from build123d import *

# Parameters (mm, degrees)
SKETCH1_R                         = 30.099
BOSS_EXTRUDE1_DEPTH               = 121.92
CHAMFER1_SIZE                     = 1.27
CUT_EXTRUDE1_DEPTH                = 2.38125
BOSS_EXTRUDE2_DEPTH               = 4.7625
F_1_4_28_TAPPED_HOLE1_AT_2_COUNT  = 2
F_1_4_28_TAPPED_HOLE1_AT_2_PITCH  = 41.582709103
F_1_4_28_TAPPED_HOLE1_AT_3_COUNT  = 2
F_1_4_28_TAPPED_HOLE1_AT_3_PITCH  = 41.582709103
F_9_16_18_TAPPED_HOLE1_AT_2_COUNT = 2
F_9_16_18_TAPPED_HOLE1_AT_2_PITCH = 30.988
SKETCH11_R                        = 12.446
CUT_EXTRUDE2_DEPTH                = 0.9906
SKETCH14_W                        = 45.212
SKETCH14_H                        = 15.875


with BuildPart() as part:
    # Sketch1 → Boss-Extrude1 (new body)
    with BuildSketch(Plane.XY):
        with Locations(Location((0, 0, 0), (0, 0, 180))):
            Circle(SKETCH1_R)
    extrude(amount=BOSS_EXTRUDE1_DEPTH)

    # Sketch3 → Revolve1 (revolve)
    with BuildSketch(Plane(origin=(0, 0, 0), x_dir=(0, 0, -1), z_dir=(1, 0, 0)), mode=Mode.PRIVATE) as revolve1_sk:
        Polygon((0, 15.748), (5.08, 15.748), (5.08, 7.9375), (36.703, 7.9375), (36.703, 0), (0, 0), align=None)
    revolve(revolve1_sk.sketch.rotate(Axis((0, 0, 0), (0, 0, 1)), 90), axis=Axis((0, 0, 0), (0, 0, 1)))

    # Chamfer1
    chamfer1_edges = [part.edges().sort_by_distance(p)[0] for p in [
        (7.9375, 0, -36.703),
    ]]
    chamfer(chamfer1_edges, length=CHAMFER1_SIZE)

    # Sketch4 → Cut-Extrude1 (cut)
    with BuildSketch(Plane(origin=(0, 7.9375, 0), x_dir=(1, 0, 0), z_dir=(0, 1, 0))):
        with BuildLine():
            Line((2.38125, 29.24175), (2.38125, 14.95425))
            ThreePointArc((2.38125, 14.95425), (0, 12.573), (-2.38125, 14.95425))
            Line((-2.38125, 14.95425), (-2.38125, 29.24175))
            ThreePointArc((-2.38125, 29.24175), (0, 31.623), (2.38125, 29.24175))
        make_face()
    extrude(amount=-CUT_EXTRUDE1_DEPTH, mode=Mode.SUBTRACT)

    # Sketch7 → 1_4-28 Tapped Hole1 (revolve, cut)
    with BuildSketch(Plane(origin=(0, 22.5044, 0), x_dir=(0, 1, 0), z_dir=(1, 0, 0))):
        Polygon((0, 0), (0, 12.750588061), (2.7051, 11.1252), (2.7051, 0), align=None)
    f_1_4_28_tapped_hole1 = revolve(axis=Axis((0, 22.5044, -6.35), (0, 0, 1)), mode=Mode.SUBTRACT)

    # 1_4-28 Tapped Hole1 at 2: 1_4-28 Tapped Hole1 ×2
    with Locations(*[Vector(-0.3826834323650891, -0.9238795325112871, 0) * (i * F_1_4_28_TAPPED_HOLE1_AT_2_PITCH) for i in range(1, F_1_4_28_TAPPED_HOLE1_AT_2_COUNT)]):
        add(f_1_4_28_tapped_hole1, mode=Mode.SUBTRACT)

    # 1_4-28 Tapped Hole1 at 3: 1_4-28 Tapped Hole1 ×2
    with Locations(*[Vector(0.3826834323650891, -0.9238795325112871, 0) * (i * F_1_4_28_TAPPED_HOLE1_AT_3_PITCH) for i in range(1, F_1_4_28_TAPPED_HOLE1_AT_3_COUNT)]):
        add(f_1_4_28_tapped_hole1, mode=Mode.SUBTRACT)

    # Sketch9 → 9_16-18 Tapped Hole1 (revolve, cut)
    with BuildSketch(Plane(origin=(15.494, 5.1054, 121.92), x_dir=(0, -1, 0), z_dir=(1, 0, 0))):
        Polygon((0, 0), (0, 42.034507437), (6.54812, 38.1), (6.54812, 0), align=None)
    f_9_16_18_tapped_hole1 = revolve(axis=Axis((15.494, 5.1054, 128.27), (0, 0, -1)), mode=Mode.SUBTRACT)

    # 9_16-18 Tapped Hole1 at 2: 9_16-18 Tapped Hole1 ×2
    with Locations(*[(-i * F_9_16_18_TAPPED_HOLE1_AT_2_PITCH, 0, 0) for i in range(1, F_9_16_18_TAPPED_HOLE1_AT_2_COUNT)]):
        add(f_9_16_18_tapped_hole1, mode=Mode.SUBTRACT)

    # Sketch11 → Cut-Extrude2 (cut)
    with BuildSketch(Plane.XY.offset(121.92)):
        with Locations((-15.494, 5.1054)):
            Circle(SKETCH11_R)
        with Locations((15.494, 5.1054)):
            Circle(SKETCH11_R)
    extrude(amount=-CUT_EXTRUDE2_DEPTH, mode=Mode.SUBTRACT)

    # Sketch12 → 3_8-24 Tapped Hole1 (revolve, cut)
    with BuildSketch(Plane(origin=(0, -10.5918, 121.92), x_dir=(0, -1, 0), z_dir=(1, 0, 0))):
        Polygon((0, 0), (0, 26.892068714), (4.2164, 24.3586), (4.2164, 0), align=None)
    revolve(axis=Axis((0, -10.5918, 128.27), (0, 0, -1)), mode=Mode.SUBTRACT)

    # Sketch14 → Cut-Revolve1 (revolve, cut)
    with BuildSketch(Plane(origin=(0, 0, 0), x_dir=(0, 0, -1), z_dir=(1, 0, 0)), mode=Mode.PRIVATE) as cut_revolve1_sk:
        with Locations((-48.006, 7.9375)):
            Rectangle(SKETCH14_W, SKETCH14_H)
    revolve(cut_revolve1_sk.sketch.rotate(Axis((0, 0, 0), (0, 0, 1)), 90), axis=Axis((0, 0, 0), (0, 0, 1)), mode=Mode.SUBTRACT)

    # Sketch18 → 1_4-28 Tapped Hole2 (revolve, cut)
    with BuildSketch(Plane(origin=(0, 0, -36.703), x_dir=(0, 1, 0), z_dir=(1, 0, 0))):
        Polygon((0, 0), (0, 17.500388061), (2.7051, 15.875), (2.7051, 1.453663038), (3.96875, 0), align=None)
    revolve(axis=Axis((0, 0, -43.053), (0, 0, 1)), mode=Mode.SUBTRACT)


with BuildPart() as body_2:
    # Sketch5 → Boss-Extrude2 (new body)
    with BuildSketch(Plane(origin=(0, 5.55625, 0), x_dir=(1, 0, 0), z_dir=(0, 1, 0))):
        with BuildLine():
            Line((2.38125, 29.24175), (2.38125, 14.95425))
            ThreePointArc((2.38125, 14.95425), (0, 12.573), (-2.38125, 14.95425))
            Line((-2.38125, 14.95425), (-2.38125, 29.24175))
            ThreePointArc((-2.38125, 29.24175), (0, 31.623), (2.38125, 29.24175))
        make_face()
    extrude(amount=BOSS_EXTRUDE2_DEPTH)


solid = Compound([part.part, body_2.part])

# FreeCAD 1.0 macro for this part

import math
import FreeCAD as App
import Part
import Sketcher
Q = App.Units.Quantity


def edges_at(feature, points):
    """Names of the edges that pass closest to the given points."""
    edges = feature.Shape.Edges
    near = lambda p: min(range(len(edges)), key=lambda i: edges[i].distToShape(Part.Vertex(*p))[0])
    return sorted({f"Edge{near(p) + 1}" for p in points})


def add_polygon(sketch, points):
    """Adds a closed chain of lines whose ends are joined by coincident constraints."""
    first, n = sketch.GeometryCount, len(points)
    for a, b in zip(points, points[1:] + points[:1]):
        sketch.addGeometry(Part.LineSegment(App.Vector(*a, 0), App.Vector(*b, 0)), False)
    for i in range(n):
        sketch.addConstraint(Sketcher.Constraint("Coincident", first + i, 2, first + (i + 1) % n, 1))

doc = App.newDocument("Part")
body = doc.addObject("PartDesign::Body", "Body")

# Sketch on XY plane
sketch1 = doc.addObject("Sketcher::SketchObject", "Sketch")
body.addObject(sketch1)
sketch1.AttachmentSupport = (doc.XY_Plane, [""])
sketch1.MapMode = "FlatFace"
sketch1.addGeometry(Part.Circle(App.Vector(0, 0, 0), App.Vector(0, 0, 1), 30.099), False)
sketch1.addConstraint(Sketcher.Constraint("Coincident", 0, 3, -1, 1))
sketch1.addConstraint(Sketcher.Constraint("Diameter", 0, Q("2.37 in")))
pad1 = doc.addObject("PartDesign::Pad", "Pad")
body.addObject(pad1)
pad1.Profile = sketch1
pad1.Length = Q("4.8 in")

# Sketch on YZ plane
sketch2 = doc.addObject("Sketcher::SketchObject", "Sketch001")
body.addObject(sketch2)
sketch2.AttachmentSupport = (doc.YZ_Plane, [""])
sketch2.MapMode = "FlatFace"
add_polygon(sketch2, [(15.748, -5.08), (15.748, 0), (0, 0), (0, -36.703), (7.9375, -36.703), (7.9375, -5.08)])  # lines 0-5
sketch2.addConstraint(Sketcher.Constraint("Vertical", 0))
sketch2.addConstraint(Sketcher.Constraint("Horizontal", 1))
sketch2.addConstraint(Sketcher.Constraint("Vertical", 2))
sketch2.addConstraint(Sketcher.Constraint("Horizontal", 3))
sketch2.addConstraint(Sketcher.Constraint("Vertical", 4))
sketch2.addConstraint(Sketcher.Constraint("Horizontal", 5))
sketch2.addConstraint(Sketcher.Constraint("Coincident", 1, 2, -1, 1))
sketch2.addConstraint(Sketcher.Constraint("DistanceY", 0, 1, 0, 2, Q("0.2 in")))
sketch2.addConstraint(Sketcher.Constraint("DistanceX", 1, 2, 1, 1, Q("0.62 in")))
sketch2.addConstraint(Sketcher.Constraint("DistanceX", 3, 1, 3, 2, Q("0.3125 in")))
sketch2.addConstraint(Sketcher.Constraint("DistanceY", 2, 2, 2, 1, Q("1.445 in")))
revolution = doc.addObject("PartDesign::Revolution", "Revolution")
body.addObject(revolution)
revolution.Profile = sketch2
revolution.ReferenceAxis = (sketch2, ["V_Axis"])
revolution.Angle = 360
doc.recompute()

chamfer = doc.addObject("PartDesign::Chamfer", "Chamfer")
body.addObject(chamfer)
chamfer.Base = (revolution, edges_at(revolution, [(7.938, 0, -36.703)]))
chamfer.Size = Q("0.05 in")

# Sketch on XZ plane
sketch3 = doc.addObject("Sketcher::SketchObject", "Sketch002")
body.addObject(sketch3)
sketch3.AttachmentSupport = (doc.XZ_Plane, [""])
sketch3.MapMode = "FlatFace"
sketch3.AttachmentOffset = App.Placement(App.Vector(0, 0, -0.3125 * 25.4), App.Rotation())
sketch3.addGeometry(Part.LineSegment(App.Vector(2.38125, -14.95425, 0), App.Vector(2.38125, -29.24175, 0)), False)
sketch3.addGeometry(Part.ArcOfCircle(Part.Circle(App.Vector(0, -29.24175, 0), App.Vector(0, 0, 1), 2.38125), math.radians(180), math.radians(360)), False)
sketch3.addGeometry(Part.LineSegment(App.Vector(-2.38125, -29.24175, 0), App.Vector(-2.38125, -14.95425, 0)), False)
sketch3.addGeometry(Part.ArcOfCircle(Part.Circle(App.Vector(0, -14.95425, 0), App.Vector(0, 0, 1), 2.38125), math.radians(0), math.radians(180)), False)
sketch3.addConstraint(Sketcher.Constraint("Tangent", 0, 2, 1, 2))
sketch3.addConstraint(Sketcher.Constraint("Tangent", 1, 1, 2, 1))
sketch3.addConstraint(Sketcher.Constraint("Tangent", 2, 2, 3, 2))
sketch3.addConstraint(Sketcher.Constraint("Tangent", 3, 1, 0, 1))
sketch3.addConstraint(Sketcher.Constraint("Vertical", 0))
sketch3.addConstraint(Sketcher.Constraint("Vertical", 2))
sketch3.addConstraint(Sketcher.Constraint("PointOnObject", 1, 3, -2))
sketch3.addConstraint(Sketcher.Constraint("Radius", 1, Q("0.09375 in")))
sketch3.addConstraint(Sketcher.Constraint("DistanceY", 0, 2, 0, 1, Q("0.5625 in")))
sketch3.addConstraint(Sketcher.Constraint("DistanceY", 1, 3, -1, 1, 29.24175))
pocket1 = doc.addObject("PartDesign::Pocket", "Pocket")
body.addObject(pocket1)
pocket1.Profile = sketch3
pocket1.Length = Q("0.09375 in")
pocket1.Reversed = True

# Sketch on YZ plane
sketch4 = doc.addObject("Sketcher::SketchObject", "Sketch003")
body.addObject(sketch4)
sketch4.AttachmentSupport = (doc.YZ_Plane, [""])
sketch4.MapMode = "FlatFace"
add_polygon(sketch4, [(22.5044, 12.750588), (22.5044, 0), (25.2095, 0), (25.2095, 11.1252)])  # lines 0-3
sketch4.addGeometry(Part.LineSegment(App.Vector(22.5044, 0, 0), App.Vector(22.5044, 12.750588, 0)), True)  # axis
sketch4.addConstraint(Sketcher.Constraint("Vertical", 0))
sketch4.addConstraint(Sketcher.Constraint("Horizontal", 1))
sketch4.addConstraint(Sketcher.Constraint("Vertical", 2))
sketch4.addConstraint(Sketcher.Constraint("Vertical", 4))
sketch4.addConstraint(Sketcher.Constraint("Coincident", 4, 1, 0, 2))
sketch4.addConstraint(Sketcher.Constraint("PointOnObject", 0, 2, -1))
sketch4.addConstraint(Sketcher.Constraint("Equal", 0, 4))
sketch4.addConstraint(Sketcher.Constraint("Angle", 3, Q("149 deg")))
sketch4.addConstraint(Sketcher.Constraint("DistanceY", 2, 1, 2, 2, Q("0.438 in")))
sketch4.addConstraint(Sketcher.Constraint("DistanceX", 1, 1, 1, 2, Q("0.1065 in")))
sketch4.addConstraint(Sketcher.Constraint("DistanceX", -1, 1, 0, 2, Q("0.886 in")))
groove = doc.addObject("PartDesign::Groove", "Groove")
body.addObject(groove)
groove.Profile = sketch4
groove.ReferenceAxis = (sketch4, ["Axis0"])
groove.Angle = 360
doc.recompute()

datumline = doc.addObject("PartDesign::Line", "DatumLine")
body.addObject(datumline)
datumline.Placement = App.Placement(App.Vector(0, 0, 0), App.Rotation(App.Vector(0, 0, 1), App.Vector(-0.382683432, -0.923879533, 0)))
linearpattern = doc.addObject("PartDesign::LinearPattern", "LinearPattern")
body.addObject(linearpattern)
linearpattern.Originals = [groove]
linearpattern.Direction = (datumline, [""])
linearpattern.Mode = "offset"
linearpattern.Offset = 41.582709
linearpattern.Occurrences = 2
body.Tip = linearpattern
doc.recompute()

datumline2 = doc.addObject("PartDesign::Line", "DatumLine001")
body.addObject(datumline2)
datumline2.Placement = App.Placement(App.Vector(0, 0, 0), App.Rotation(App.Vector(0, 0, 1), App.Vector(0.382683432, -0.923879533, 0)))
linearpattern2 = doc.addObject("PartDesign::LinearPattern", "LinearPattern001")
body.addObject(linearpattern2)
linearpattern2.Originals = [groove]
linearpattern2.Direction = (datumline2, [""])
linearpattern2.Mode = "offset"
linearpattern2.Offset = 41.582709
linearpattern2.Occurrences = 2
body.Tip = linearpattern2

# Sketch on YZ plane
sketch5 = doc.addObject("Sketcher::SketchObject", "Sketch004")
body.addObject(sketch5)
sketch5.AttachmentSupport = (doc.YZ_Plane, [""])
sketch5.MapMode = "FlatFace"
sketch5.AttachmentOffset = App.Placement(App.Vector(0, 0, 0.61 * 25.4), App.Rotation())
add_polygon(sketch5, [(5.1054, 79.885493), (5.1054, 121.92), (-1.44272, 121.92), (-1.44272, 83.82)])  # lines 0-3
sketch5.addGeometry(Part.LineSegment(App.Vector(5.1054, 121.92, 0), App.Vector(5.1054, 79.885493, 0)), True)  # axis
sketch5.addConstraint(Sketcher.Constraint("Vertical", 0))
sketch5.addConstraint(Sketcher.Constraint("Horizontal", 1))
sketch5.addConstraint(Sketcher.Constraint("Vertical", 2))
sketch5.addConstraint(Sketcher.Constraint("Vertical", 4))
sketch5.addConstraint(Sketcher.Constraint("Coincident", 4, 1, 0, 2))
sketch5.addConstraint(Sketcher.Constraint("Equal", 0, 4))
sketch5.addConstraint(Sketcher.Constraint("DistanceY", 2, 2, 2, 1, Q("1.5 in")))
sketch5.addConstraint(Sketcher.Constraint("Angle", 3, Q("-31 deg")))
sketch5.addConstraint(Sketcher.Constraint("DistanceY", -1, 1, 0, 2, Q("4.8 in")))
sketch5.addConstraint(Sketcher.Constraint("DistanceX", 1, 2, 1, 1, Q("0.2578 in")))
sketch5.addConstraint(Sketcher.Constraint("DistanceX", -1, 1, 0, 2, Q("0.201 in")))
groove2 = doc.addObject("PartDesign::Groove", "Groove001")
body.addObject(groove2)
groove2.Profile = sketch5
groove2.ReferenceAxis = (sketch5, ["Axis0"])
groove2.Angle = 360
doc.recompute()

linearpattern3 = doc.addObject("PartDesign::LinearPattern", "LinearPattern002")
body.addObject(linearpattern3)
linearpattern3.Originals = [groove2]
linearpattern3.Direction = (doc.X_Axis, [""])
linearpattern3.Mode = "offset"
linearpattern3.Offset = Q("1.22 in")
linearpattern3.Occurrences = 2
linearpattern3.Reversed = True
body.Tip = linearpattern3

# Sketch on XY plane
sketch6 = doc.addObject("Sketcher::SketchObject", "Sketch005")
body.addObject(sketch6)
sketch6.AttachmentSupport = (doc.XY_Plane, [""])
sketch6.MapMode = "FlatFace"
sketch6.AttachmentOffset = App.Placement(App.Vector(0, 0, 4.8 * 25.4), App.Rotation())
sketch6.addGeometry(Part.Circle(App.Vector(-15.494, 5.1054, 0), App.Vector(0, 0, 1), 12.446), False)
sketch6.addGeometry(Part.Circle(App.Vector(15.494, 5.1054, 0), App.Vector(0, 0, 1), 12.446), False)
sketch6.addConstraint(Sketcher.Constraint("Equal", 0, 1))
sketch6.addConstraint(Sketcher.Constraint("Symmetric", 0, 3, 1, 3, -2))
sketch6.addConstraint(Sketcher.Constraint("Diameter", 0, Q("0.98 in")))
sketch6.addConstraint(Sketcher.Constraint("DistanceX", 0, 3, -1, 1, Q("0.61 in")))
sketch6.addConstraint(Sketcher.Constraint("DistanceY", -1, 1, 0, 3, Q("0.201 in")))
pocket2 = doc.addObject("PartDesign::Pocket", "Pocket001")
body.addObject(pocket2)
pocket2.Profile = sketch6
pocket2.Length = Q("0.039 in")

# Sketch on YZ plane
sketch7 = doc.addObject("Sketcher::SketchObject", "Sketch006")
body.addObject(sketch7)
sketch7.AttachmentSupport = (doc.YZ_Plane, [""])
sketch7.MapMode = "FlatFace"
add_polygon(sketch7, [(-10.5918, 95.027931), (-10.5918, 121.92), (-14.8082, 121.92), (-14.8082, 97.5614)])  # lines 0-3
sketch7.addGeometry(Part.LineSegment(App.Vector(-10.5918, 121.92, 0), App.Vector(-10.5918, 95.027931, 0)), True)  # axis
sketch7.addConstraint(Sketcher.Constraint("Vertical", 0))
sketch7.addConstraint(Sketcher.Constraint("Horizontal", 1))
sketch7.addConstraint(Sketcher.Constraint("Vertical", 2))
sketch7.addConstraint(Sketcher.Constraint("Vertical", 4))
sketch7.addConstraint(Sketcher.Constraint("Coincident", 4, 1, 0, 2))
sketch7.addConstraint(Sketcher.Constraint("Equal", 0, 4))
sketch7.addConstraint(Sketcher.Constraint("Angle", 3, Q("-31 deg")))
sketch7.addConstraint(Sketcher.Constraint("DistanceY", -1, 1, 0, 2, Q("4.8 in")))
sketch7.addConstraint(Sketcher.Constraint("DistanceX", 1, 2, 1, 1, Q("0.166 in")))
sketch7.addConstraint(Sketcher.Constraint("DistanceY", 2, 2, 2, 1, Q("0.959 in")))
sketch7.addConstraint(Sketcher.Constraint("DistanceX", 0, 2, -1, 1, Q("0.417 in")))
groove3 = doc.addObject("PartDesign::Groove", "Groove002")
body.addObject(groove3)
groove3.Profile = sketch7
groove3.ReferenceAxis = (sketch7, ["Axis0"])
groove3.Angle = 360

# Sketch on YZ plane
sketch8 = doc.addObject("Sketcher::SketchObject", "Sketch007")
body.addObject(sketch8)
sketch8.AttachmentSupport = (doc.YZ_Plane, [""])
sketch8.MapMode = "FlatFace"
add_polygon(sketch8, [(15.875, 70.612), (0, 70.612), (0, 25.4), (15.875, 25.4)])  # lines 0-3
sketch8.addConstraint(Sketcher.Constraint("Horizontal", 0))
sketch8.addConstraint(Sketcher.Constraint("Vertical", 1))
sketch8.addConstraint(Sketcher.Constraint("Horizontal", 2))
sketch8.addConstraint(Sketcher.Constraint("Vertical", 3))
sketch8.addConstraint(Sketcher.Constraint("PointOnObject", 0, 2, -2))
sketch8.addConstraint(Sketcher.Constraint("DistanceY", -1, 1, 1, 2, Q("1 in")))
sketch8.addConstraint(Sketcher.Constraint("DistanceY", 1, 2, 1, 1, Q("1.78 in")))
sketch8.addConstraint(Sketcher.Constraint("DistanceX", 0, 2, 0, 1, Q("0.625 in")))
groove4 = doc.addObject("PartDesign::Groove", "Groove003")
body.addObject(groove4)
groove4.Profile = sketch8
groove4.ReferenceAxis = (sketch8, ["V_Axis"])
groove4.Angle = 360

# Sketch on YZ plane
sketch9 = doc.addObject("Sketcher::SketchObject", "Sketch008")
body.addObject(sketch9)
sketch9.AttachmentSupport = (doc.YZ_Plane, [""])
sketch9.MapMode = "FlatFace"
add_polygon(sketch9, [(0, -19.202612), (0, -36.703), (3.96875, -36.703), (2.7051, -35.249337), (2.7051, -20.828)])  # lines 0-4
sketch9.addConstraint(Sketcher.Constraint("Vertical", 0))
sketch9.addConstraint(Sketcher.Constraint("Horizontal", 1))
sketch9.addConstraint(Sketcher.Constraint("Vertical", 3))
sketch9.addConstraint(Sketcher.Constraint("PointOnObject", 0, 2, -2))
sketch9.addConstraint(Sketcher.Constraint("Angle", 2, Q("131 deg")))
sketch9.addConstraint(Sketcher.Constraint("Angle", 4, Q("149 deg")))
sketch9.addConstraint(Sketcher.Constraint("DistanceX", 1, 1, 1, 2, Q("0.15625 in")))
sketch9.addConstraint(Sketcher.Constraint("DistanceY", 3, 2, -1, 1, Q("0.82 in")))
sketch9.addConstraint(Sketcher.Constraint("DistanceY", 0, 2, -1, 1, Q("1.445 in")))
sketch9.addConstraint(Sketcher.Constraint("DistanceX", -1, 1, 2, 2, Q("0.1065 in")))
groove5 = doc.addObject("PartDesign::Groove", "Groove004")
body.addObject(groove5)
groove5.Profile = sketch9
groove5.ReferenceAxis = (sketch9, ["V_Axis"])
groove5.Angle = 360
body2 = doc.addObject("PartDesign::Body", "Body001")

# Sketch on XZ plane
sketch10 = doc.addObject("Sketcher::SketchObject", "Sketch009")
body2.addObject(sketch10)
sketch10.AttachmentSupport = (doc.getObject("XZ_Plane001"), [""])
sketch10.MapMode = "FlatFace"
sketch10.AttachmentOffset = App.Placement(App.Vector(0, 0, -0.21875 * 25.4), App.Rotation())
sketch10.addGeometry(Part.LineSegment(App.Vector(2.38125, -14.95425, 0), App.Vector(2.38125, -29.24175, 0)), False)
sketch10.addGeometry(Part.ArcOfCircle(Part.Circle(App.Vector(0, -29.24175, 0), App.Vector(0, 0, 1), 2.38125), math.radians(180), math.radians(360)), False)
sketch10.addGeometry(Part.LineSegment(App.Vector(-2.38125, -29.24175, 0), App.Vector(-2.38125, -14.95425, 0)), False)
sketch10.addGeometry(Part.ArcOfCircle(Part.Circle(App.Vector(0, -14.95425, 0), App.Vector(0, 0, 1), 2.38125), math.radians(0), math.radians(180)), False)
sketch10.addConstraint(Sketcher.Constraint("Tangent", 0, 2, 1, 2))
sketch10.addConstraint(Sketcher.Constraint("Tangent", 1, 1, 2, 1))
sketch10.addConstraint(Sketcher.Constraint("Tangent", 2, 2, 3, 2))
sketch10.addConstraint(Sketcher.Constraint("Tangent", 3, 1, 0, 1))
sketch10.addConstraint(Sketcher.Constraint("Vertical", 0))
sketch10.addConstraint(Sketcher.Constraint("Vertical", 2))
sketch10.addConstraint(Sketcher.Constraint("PointOnObject", 1, 3, -2))
sketch10.addConstraint(Sketcher.Constraint("Radius", 1, Q("0.09375 in")))
sketch10.addConstraint(Sketcher.Constraint("DistanceY", 0, 2, 0, 1, Q("0.5625 in")))
sketch10.addConstraint(Sketcher.Constraint("DistanceY", 1, 3, -1, 1, 29.24175))
pad2 = doc.addObject("PartDesign::Pad", "Pad001")
body2.addObject(pad2)
pad2.Profile = sketch10
pad2.Length = Q("0.1875 in")
pad2.Reversed = True

doc.recompute()
